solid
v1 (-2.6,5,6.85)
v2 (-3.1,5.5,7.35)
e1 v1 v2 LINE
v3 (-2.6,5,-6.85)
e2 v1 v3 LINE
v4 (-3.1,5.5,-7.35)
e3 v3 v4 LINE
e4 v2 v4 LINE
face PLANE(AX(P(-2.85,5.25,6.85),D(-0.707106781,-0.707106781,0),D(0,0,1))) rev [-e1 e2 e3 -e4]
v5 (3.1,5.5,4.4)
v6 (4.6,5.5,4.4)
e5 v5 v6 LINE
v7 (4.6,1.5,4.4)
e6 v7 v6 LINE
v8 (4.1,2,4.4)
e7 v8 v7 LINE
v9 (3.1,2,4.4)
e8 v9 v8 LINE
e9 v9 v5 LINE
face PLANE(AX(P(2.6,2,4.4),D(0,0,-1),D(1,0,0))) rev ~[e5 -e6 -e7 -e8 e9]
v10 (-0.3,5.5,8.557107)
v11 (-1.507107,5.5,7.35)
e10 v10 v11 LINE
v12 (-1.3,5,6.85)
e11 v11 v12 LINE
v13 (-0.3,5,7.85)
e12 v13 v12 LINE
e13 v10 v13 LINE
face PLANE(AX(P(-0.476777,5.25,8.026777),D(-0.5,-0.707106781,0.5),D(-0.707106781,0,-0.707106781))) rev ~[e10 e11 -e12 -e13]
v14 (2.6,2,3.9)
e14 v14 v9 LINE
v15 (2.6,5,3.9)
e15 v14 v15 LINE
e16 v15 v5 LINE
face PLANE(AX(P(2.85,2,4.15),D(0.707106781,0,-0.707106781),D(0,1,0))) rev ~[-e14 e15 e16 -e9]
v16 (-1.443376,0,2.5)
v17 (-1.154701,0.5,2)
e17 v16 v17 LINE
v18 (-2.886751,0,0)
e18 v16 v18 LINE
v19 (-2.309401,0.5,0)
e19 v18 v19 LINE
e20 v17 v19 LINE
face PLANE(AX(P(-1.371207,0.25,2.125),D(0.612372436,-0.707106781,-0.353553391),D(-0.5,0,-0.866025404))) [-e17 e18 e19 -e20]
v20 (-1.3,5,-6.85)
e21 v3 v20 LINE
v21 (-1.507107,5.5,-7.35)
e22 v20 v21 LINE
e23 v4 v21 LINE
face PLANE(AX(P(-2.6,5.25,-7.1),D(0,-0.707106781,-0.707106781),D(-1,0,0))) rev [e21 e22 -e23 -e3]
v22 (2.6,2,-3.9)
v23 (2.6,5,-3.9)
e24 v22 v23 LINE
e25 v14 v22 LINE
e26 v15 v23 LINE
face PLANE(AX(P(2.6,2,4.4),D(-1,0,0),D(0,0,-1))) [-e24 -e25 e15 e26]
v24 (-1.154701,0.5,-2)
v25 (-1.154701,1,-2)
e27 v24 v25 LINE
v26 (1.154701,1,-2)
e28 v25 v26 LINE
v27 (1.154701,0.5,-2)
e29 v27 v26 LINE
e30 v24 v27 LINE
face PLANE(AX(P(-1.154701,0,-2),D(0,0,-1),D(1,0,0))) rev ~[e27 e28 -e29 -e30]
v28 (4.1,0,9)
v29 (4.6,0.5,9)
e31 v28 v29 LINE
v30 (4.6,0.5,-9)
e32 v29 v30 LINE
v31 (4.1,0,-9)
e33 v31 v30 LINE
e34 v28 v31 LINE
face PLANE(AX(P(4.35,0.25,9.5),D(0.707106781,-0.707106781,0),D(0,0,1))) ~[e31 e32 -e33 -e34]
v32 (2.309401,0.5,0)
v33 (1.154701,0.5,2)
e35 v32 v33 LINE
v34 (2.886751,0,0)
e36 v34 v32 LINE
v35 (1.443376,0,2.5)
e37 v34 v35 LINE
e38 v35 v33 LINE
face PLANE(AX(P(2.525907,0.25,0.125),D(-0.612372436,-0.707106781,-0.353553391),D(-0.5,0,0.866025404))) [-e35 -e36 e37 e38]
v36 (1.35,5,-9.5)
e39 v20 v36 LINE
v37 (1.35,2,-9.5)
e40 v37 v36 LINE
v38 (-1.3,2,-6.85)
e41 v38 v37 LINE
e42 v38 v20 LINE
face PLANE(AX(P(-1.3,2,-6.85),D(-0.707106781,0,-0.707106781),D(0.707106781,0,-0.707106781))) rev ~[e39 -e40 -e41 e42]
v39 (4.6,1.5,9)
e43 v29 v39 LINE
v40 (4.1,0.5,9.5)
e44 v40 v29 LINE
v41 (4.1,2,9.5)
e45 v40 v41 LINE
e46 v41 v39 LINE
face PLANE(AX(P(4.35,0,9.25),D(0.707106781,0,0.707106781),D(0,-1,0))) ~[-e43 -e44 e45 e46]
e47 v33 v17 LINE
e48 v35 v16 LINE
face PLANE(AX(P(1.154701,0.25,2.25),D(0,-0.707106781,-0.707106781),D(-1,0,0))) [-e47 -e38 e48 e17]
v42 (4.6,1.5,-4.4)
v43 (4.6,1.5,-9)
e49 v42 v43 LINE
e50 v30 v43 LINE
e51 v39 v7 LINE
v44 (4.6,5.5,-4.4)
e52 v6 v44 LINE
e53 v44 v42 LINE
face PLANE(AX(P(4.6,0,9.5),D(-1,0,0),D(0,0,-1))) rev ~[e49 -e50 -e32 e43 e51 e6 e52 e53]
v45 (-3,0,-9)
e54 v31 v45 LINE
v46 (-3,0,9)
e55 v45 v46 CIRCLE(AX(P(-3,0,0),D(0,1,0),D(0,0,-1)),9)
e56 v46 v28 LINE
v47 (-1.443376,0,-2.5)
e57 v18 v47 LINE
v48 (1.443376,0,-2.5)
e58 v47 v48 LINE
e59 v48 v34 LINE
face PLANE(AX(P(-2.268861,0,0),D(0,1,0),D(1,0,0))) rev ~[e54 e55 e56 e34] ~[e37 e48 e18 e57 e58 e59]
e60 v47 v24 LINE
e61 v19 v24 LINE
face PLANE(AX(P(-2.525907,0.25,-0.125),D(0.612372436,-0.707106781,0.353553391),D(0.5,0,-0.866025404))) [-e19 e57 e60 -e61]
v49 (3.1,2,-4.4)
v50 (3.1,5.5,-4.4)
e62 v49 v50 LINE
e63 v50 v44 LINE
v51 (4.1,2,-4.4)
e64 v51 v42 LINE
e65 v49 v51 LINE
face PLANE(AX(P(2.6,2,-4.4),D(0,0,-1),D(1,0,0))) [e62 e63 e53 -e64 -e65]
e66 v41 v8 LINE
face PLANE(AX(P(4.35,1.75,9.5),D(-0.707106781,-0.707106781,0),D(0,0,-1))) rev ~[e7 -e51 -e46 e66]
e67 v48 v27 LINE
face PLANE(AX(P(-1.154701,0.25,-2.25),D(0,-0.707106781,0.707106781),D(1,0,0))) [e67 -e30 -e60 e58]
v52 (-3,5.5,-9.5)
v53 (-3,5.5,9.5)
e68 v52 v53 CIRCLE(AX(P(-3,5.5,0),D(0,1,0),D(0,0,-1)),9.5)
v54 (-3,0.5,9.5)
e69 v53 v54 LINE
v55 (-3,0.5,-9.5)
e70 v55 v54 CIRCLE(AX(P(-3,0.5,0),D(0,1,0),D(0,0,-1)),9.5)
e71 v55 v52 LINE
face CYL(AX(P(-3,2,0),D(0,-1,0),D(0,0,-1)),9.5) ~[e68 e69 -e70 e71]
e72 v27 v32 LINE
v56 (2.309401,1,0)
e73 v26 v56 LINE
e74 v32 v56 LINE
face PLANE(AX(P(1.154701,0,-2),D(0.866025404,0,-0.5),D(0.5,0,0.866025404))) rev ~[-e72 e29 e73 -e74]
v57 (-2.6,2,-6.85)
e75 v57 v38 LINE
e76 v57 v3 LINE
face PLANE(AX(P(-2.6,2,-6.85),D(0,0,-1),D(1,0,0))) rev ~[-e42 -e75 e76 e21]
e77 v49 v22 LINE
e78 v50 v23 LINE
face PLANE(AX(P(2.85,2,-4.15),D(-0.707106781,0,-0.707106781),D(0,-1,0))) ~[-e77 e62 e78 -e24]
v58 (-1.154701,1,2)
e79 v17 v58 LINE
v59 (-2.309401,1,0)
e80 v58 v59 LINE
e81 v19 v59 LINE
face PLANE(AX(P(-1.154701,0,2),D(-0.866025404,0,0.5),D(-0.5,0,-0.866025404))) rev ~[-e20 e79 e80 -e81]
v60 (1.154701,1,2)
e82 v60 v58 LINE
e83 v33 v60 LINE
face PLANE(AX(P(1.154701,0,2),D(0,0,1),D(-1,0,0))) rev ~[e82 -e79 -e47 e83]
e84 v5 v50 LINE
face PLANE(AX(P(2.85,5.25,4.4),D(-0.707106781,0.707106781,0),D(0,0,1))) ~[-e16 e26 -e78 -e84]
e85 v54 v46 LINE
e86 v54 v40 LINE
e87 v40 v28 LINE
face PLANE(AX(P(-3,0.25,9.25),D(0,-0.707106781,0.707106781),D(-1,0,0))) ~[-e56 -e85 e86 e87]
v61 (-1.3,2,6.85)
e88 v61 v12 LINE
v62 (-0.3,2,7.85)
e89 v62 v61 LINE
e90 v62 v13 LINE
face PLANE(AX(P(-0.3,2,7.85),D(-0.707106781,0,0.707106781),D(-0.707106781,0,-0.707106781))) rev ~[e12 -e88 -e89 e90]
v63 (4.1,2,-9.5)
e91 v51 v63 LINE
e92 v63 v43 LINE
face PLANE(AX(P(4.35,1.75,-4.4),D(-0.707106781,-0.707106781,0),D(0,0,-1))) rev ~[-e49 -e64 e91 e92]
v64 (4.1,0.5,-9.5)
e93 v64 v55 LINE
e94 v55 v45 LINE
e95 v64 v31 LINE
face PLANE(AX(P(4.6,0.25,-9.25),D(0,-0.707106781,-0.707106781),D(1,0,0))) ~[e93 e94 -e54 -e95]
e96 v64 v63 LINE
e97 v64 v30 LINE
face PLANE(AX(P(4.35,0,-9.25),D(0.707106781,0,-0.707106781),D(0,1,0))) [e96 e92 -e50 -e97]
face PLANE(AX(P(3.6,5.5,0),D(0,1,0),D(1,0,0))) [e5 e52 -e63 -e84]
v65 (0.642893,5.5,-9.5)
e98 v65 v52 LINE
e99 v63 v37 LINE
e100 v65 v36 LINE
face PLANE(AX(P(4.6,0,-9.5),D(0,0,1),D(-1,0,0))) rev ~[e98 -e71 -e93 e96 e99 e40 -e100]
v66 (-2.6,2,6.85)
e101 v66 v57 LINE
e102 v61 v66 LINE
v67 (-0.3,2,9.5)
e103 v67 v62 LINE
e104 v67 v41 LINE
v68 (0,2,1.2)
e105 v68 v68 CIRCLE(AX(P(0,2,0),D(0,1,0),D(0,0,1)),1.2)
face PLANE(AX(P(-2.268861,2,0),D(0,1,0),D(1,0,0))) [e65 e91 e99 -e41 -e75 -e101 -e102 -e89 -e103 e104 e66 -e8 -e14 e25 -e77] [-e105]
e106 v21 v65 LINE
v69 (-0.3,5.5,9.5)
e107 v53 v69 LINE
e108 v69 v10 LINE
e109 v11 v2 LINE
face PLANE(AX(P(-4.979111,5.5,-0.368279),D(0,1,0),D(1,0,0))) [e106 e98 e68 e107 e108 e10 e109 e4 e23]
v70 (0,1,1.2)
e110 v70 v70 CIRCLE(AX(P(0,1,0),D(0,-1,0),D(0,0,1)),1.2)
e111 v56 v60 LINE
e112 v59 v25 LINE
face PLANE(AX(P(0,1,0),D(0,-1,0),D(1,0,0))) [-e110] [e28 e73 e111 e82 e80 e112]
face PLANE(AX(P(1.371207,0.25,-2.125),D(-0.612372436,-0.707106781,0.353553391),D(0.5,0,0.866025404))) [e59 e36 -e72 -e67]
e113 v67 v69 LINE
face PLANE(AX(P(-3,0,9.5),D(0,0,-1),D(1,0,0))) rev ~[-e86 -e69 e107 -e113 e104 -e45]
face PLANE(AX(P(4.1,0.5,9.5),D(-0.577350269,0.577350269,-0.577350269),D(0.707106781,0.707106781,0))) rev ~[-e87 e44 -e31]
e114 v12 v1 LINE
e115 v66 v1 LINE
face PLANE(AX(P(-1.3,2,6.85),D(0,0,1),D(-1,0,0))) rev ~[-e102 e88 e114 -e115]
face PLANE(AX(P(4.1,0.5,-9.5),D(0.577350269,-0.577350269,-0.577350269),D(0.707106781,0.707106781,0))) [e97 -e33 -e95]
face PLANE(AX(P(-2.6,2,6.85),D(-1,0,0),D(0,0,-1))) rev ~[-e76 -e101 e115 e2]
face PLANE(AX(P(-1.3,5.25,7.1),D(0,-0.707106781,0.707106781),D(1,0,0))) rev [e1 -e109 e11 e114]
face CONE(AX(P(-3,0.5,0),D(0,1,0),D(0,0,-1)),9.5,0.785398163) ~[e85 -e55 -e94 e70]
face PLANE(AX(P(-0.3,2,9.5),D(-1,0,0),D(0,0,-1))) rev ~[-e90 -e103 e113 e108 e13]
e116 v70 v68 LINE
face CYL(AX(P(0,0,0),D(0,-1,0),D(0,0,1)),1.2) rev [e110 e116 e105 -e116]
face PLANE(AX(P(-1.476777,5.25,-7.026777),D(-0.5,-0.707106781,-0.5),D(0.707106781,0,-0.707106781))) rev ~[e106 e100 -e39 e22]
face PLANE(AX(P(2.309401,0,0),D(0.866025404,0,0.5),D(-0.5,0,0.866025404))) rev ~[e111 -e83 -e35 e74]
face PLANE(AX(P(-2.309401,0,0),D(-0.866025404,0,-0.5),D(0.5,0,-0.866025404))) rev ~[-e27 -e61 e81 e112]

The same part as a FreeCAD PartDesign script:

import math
import FreeCAD as App
import Part
import Sketcher
Q = App.Units.Quantity


def edges_at(feature, points):
    """Names of the edges that pass closest to the given points."""
    edges = feature.Shape.Edges
    near = lambda p: min(range(len(edges)), key=lambda i: edges[i].distToShape(Part.Vertex(*p))[0])
    return sorted({f"Edge{near(p) + 1}" for p in points})


def add_polygon(sketch, points):
    """Adds a closed chain of lines whose ends are joined by coincident constraints."""
    first, n = sketch.GeometryCount, len(points)
    for a, b in zip(points, points[1:] + points[:1]):
        sketch.addGeometry(Part.LineSegment(App.Vector(*a, 0), App.Vector(*b, 0)), False)
    for i in range(n):
        sketch.addConstraint(Sketcher.Constraint("Coincident", first + i, 2, first + (i + 1) % n, 1))

doc = App.newDocument("Part")
body = doc.addObject("PartDesign::Body", "Body")

# Sketch on XZ plane
sketch1 = body.newObject("Sketcher::SketchObject", "Sketch")
sketch1.AttachmentSupport = (doc.getObject("XZ_Plane"), [""])
sketch1.MapMode = "FlatFace"
sketch1.addGeometry([
    Part.LineSegment(App.Vector(4.6, 9.5, 0), App.Vector(4.6, -9.5, 0)),  # 0
    Part.LineSegment(App.Vector(4.6, -9.5, 0), App.Vector(-3, -9.5, 0)),  # 1
    Part.ArcOfCircle(Part.Circle(App.Vector(-3, 0, 0), App.Vector(0, 0, 1), 9.5), math.radians(90), math.radians(270)),  # 2
    Part.LineSegment(App.Vector(-3, 9.5, 0), App.Vector(4.6, 9.5, 0)),  # 3
    Part.Circle(App.Vector(0, 0, 0), App.Vector(0, 0, 1), 1.2),  # 4
], False)
sketch1.addConstraint([
    Sketcher.Constraint("Coincident", 0, 2, 1, 1),
    Sketcher.Constraint("Tangent", 1, 2, 2, 2),
    Sketcher.Constraint("Tangent", 2, 1, 3, 1),
    Sketcher.Constraint("Coincident", 3, 2, 0, 1),
    Sketcher.Constraint("Vertical", 0),
    Sketcher.Constraint("Horizontal", 1),
    Sketcher.Constraint("Horizontal", 3),
    Sketcher.Constraint("Coincident", 4, 3, -1, 1),
    Sketcher.Constraint("PointOnObject", 2, 3, -1),
    Sketcher.Constraint("Diameter", 4, 2.4),
    Sketcher.Constraint("Radius", 2, 9.5),
    Sketcher.Constraint("DistanceX", 1, 2, 1, 1, 7.6),
    Sketcher.Constraint("DistanceX", 2, 3, -1, 1, 3.0),
])
pad1 = body.newObject("PartDesign::Pad", "Pad")
pad1.Profile = sketch1
pad1.Length = 2
pad1.Reversed = True

# Sketch on XZ plane
sketch2 = body.newObject("Sketcher::SketchObject", "Sketch001")
sketch2.AttachmentSupport = (doc.getObject("XZ_Plane"), [""])
sketch2.MapMode = "FlatFace"
sketch2.AttachmentOffset = App.Placement(App.Vector(0, 0, -2), App.Rotation())
add_polygon(sketch2, [(2.6, -4.4), (2.6, 4.4), (4.6, 4.4), (4.6, -4.4)])  # lines 0-3
sketch2.addGeometry(Part.LineSegment(App.Vector(-2.6, 6.8, 0), App.Vector(-2.6, -6.8, 0)), False)  # 4
sketch2.addGeometry(Part.LineSegment(App.Vector(-2.6, -6.8, 0), App.Vector(-1.3, -6.8, 0)), False)  # 5
sketch2.addGeometry(Part.LineSegment(App.Vector(-1.3, -6.8, 0), App.Vector(1.4, -9.5, 0)), False)  # 6
sketch2.addGeometry(Part.LineSegment(App.Vector(1.4, -9.5, 0), App.Vector(-3, -9.5, 0)), False)  # 7
sketch2.addGeometry(Part.ArcOfCircle(Part.Circle(App.Vector(-3, 0, 0), App.Vector(0, 0, 1), 9.5), math.radians(90), math.radians(270)), False)  # 8
sketch2.addGeometry(Part.LineSegment(App.Vector(-3, 9.5, 0), App.Vector(-0.3, 9.5, 0)), False)  # 9
sketch2.addGeometry(Part.LineSegment(App.Vector(-0.3, 9.5, 0), App.Vector(-0.3, 7.8, 0)), False)  # 10
sketch2.addGeometry(Part.LineSegment(App.Vector(-0.3, 7.8, 0), App.Vector(-1.3, 6.8, 0)), False)  # 11
sketch2.addGeometry(Part.LineSegment(App.Vector(-1.3, 6.8, 0), App.Vector(-2.6, 6.8, 0)), False)  # 12
sketch2.addConstraint([
    Sketcher.Constraint("Coincident", 4, 2, 5, 1),
    Sketcher.Constraint("Coincident", 5, 2, 6, 1),
    Sketcher.Constraint("Coincident", 6, 2, 7, 1),
    Sketcher.Constraint("Tangent", 7, 2, 8, 2),
    Sketcher.Constraint("Tangent", 8, 1, 9, 1),
    Sketcher.Constraint("Coincident", 9, 2, 10, 1),
    Sketcher.Constraint("Coincident", 10, 2, 11, 1),
    Sketcher.Constraint("Coincident", 11, 2, 12, 1),
    Sketcher.Constraint("Coincident", 12, 2, 4, 1),
    Sketcher.Constraint("Vertical", 0),
    Sketcher.Constraint("Horizontal", 1),
    Sketcher.Constraint("Vertical", 2),
    Sketcher.Constraint("Horizontal", 3),
    Sketcher.Constraint("Vertical", 4),
    Sketcher.Constraint("Horizontal", 5),
    Sketcher.Constraint("Horizontal", 7),
    Sketcher.Constraint("Horizontal", 9),
    Sketcher.Constraint("Vertical", 10),
    Sketcher.Constraint("Horizontal", 12),
    Sketcher.Constraint("Symmetric", 5, 2, 11, 2, -1),
    Sketcher.Constraint("PointOnObject", 8, 3, -1),
    Sketcher.Constraint("Perpendicular", 6, 11),
    Sketcher.Constraint("Radius", 8, 9.5),
    Sketcher.Constraint("DistanceX", 1, 1, 1, 2, 2.0),
    Sketcher.Constraint("Angle", 6, Q("-45 deg")),
    Sketcher.Constraint("DistanceX", 5, 1, 5, 2, 1.3),
    Sketcher.Constraint("DistanceX", 9, 1, 9, 2, 2.7),
    Sketcher.Constraint("DistanceY", 0, 1, 0, 2, 8.8),
    Sketcher.Constraint("DistanceY", 4, 2, 4, 1, 13.7),
    Sketcher.Constraint("DistanceX", 8, 3, -1, 1, 3.0),
    Sketcher.Constraint("DistanceX", 11, 2, 10, 2, 1.0),
    Sketcher.Constraint("DistanceX", -1, 1, 0, 2, 2.6),
    Sketcher.Constraint("DistanceY", -1, 1, 0, 2, 4.4),
])
pad2 = body.newObject("PartDesign::Pad", "Pad001")
pad2.Profile = sketch2
pad2.Length = 3.5
pad2.Reversed = True

# Sketch on XZ plane
sketch3 = body.newObject("Sketcher::SketchObject", "Sketch002")
sketch3.AttachmentSupport = (doc.getObject("XZ_Plane"), [""])
sketch3.MapMode = "FlatFace"
add_polygon(sketch3, [(-2.3, 0), (-1.2, -2), (1.2, -2), (2.3, 0), (1.2, 2), (-1.2, 2)])  # lines 0-5
sketch3.addConstraint([
    Sketcher.Constraint("Horizontal", 1),
    Sketcher.Constraint("Horizontal", 4),
    Sketcher.Constraint("Symmetric", 0, 2, 3, 2, -1, 1),
    Sketcher.Constraint("Symmetric", 2, 2, 5, 2, -1, 1),
    Sketcher.Constraint("PointOnObject", 2, 2, -1),
    Sketcher.Constraint("Parallel", 2, 5),
    Sketcher.Constraint("Vertical", 1, 2, 3, 2),
    Sketcher.Constraint("Angle", 0, Q("-60 deg")),
    Sketcher.Constraint("DistanceY", 0, 2, -1, 1, 2.0),
    Sketcher.Constraint("DistanceX", 1, 1, 1, 2, 2.309401),
])
pocket1 = body.newObject("PartDesign::Pocket", "Pocket")
pocket1.Profile = sketch3
pocket1.Length = 1
doc.recompute()

chamfer = body.newObject("PartDesign::Chamfer", "Chamfer")
chamfer.Base = (pocket1, edges_at(pocket1, [
    (4.6, 2, 6.95),
    (-0.8, 5.5, 7.35),
    (-1.95, 5.5, 6.85),
    (-2.6, 5.5, 0),
    (-1.95, 5.5, -6.85),
    (0.025, 5.5, -8.175),
    (4.6, 2, -6.95),
    (2.6, 3.75, -4.4),
    (2.6, 3.75, 4.4),
    (2.6, 5.5, 0),
    (4.6, 0, 0),
    (0.8, 0, 9.5),
    (-12.5, 0, 0),
    (0.8, 0, -9.5),
    (-1.732, 0, 1),
    (-1.732, 0, -1),
    (0, 0, -2),
    (1.732, 0, -1),
    (1.732, 0, 1),
    (0, 0, 2),
    (4.6, 1, -9.5),
    (4.6, 1, 9.5),
]))
chamfer.Size = 0.5

doc.recompute()
